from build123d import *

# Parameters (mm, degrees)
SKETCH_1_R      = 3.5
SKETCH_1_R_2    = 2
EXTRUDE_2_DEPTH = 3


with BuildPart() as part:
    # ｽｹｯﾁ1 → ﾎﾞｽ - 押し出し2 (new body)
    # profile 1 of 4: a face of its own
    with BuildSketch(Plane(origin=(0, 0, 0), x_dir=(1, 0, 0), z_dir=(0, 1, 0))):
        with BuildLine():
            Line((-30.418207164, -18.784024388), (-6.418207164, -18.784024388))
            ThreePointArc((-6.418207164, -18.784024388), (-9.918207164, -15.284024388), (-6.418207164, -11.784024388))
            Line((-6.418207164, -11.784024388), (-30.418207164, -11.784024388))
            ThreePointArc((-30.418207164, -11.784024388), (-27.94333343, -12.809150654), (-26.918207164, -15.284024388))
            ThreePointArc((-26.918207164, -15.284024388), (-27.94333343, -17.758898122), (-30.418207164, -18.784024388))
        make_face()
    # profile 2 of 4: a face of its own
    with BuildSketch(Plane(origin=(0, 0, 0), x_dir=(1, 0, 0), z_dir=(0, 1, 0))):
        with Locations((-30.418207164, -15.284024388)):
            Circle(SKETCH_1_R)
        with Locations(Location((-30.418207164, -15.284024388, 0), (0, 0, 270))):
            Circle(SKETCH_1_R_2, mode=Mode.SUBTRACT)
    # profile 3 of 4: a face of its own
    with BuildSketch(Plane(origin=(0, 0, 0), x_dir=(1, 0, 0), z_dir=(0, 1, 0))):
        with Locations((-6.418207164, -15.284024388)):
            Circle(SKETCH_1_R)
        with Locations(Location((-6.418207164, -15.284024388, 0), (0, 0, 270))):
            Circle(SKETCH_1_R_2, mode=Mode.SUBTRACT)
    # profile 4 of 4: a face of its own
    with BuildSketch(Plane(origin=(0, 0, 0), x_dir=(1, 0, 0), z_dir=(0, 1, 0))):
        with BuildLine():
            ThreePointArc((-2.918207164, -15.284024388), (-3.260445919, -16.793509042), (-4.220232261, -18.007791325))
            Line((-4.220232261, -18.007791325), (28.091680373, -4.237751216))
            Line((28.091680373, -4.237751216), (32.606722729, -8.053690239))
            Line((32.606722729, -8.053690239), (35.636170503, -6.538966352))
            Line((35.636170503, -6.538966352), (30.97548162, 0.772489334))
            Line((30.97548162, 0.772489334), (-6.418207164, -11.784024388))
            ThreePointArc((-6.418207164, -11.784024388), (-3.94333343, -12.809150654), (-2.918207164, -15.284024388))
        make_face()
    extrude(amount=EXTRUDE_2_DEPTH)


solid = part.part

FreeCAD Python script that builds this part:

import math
import FreeCAD as App
import Part
import Sketcher
Q = App.Units.Quantity

doc = App.newDocument("Part")
body = doc.addObject("PartDesign::Body", "Body")

# Sketch on XZ plane
sketch1 = doc.addObject("Sketcher::SketchObject", "Sketch")
body.addObject(sketch1)
sketch1.AttachmentSupport = (doc.XZ_Plane, [""])
sketch1.MapMode = "FlatFace"
sketch1.addGeometry(Part.LineSegment(App.Vector(-30.4, 18.8, 0), App.Vector(-6.4, 18.8, 0)), False)
sketch1.addGeometry(Part.ArcOfCircle(Part.Circle(App.Vector(-6.4, 15.3, 0), App.Vector(0, 0, 1), 3.5), math.radians(51), math.radians(90)), False)
sketch1.addGeometry(Part.LineSegment(App.Vector(-4.2, 18, 0), App.Vector(28.1, 4.2, 0)), False)
sketch1.addGeometry(Part.LineSegment(App.Vector(28.1, 4.2, 0), App.Vector(32.6, 8.1, 0)), False)
sketch1.addGeometry(Part.LineSegment(App.Vector(32.6, 8.1, 0), App.Vector(35.6, 6.5, 0)), False)
sketch1.addGeometry(Part.LineSegment(App.Vector(35.6, 6.5, 0), App.Vector(31, -0.8, 0)), False)
sketch1.addGeometry(Part.LineSegment(App.Vector(31, -0.8, 0), App.Vector(-6.4, 11.8, 0)), False)
sketch1.addGeometry(Part.LineSegment(App.Vector(-6.4, 11.8, 0), App.Vector(-30.4, 11.8, 0)), False)
sketch1.addGeometry(Part.ArcOfCircle(Part.Circle(App.Vector(-30.4, 15.3, 0), App.Vector(0, 0, 1), 3.5), math.radians(90), math.radians(270)), False)
sketch1.addGeometry(Part.Circle(App.Vector(-6.4, 15.3, 0), App.Vector(0, 0, 1), 2), False)
sketch1.addGeometry(Part.Circle(App.Vector(-30.4, 15.3, 0), App.Vector(0, 0, 1), 2), False)
sketch1.addConstraint(Sketcher.Constraint("Tangent", 0, 2, 1, 2))
sketch1.addConstraint(Sketcher.Constraint("Coincident", 1, 1, 2, 1))
sketch1.addConstraint(Sketcher.Constraint("Coincident", 2, 2, 3, 1))
sketch1.addConstraint(Sketcher.Constraint("Coincident", 3, 2, 4, 1))
sketch1.addConstraint(Sketcher.Constraint("Coincident", 4, 2, 5, 1))
sketch1.addConstraint(Sketcher.Constraint("Coincident", 5, 2, 6, 1))
sketch1.addConstraint(Sketcher.Constraint("Coincident", 6, 2, 7, 1))
sketch1.addConstraint(Sketcher.Constraint("Tangent", 7, 2, 8, 2))
sketch1.addConstraint(Sketcher.Constraint("Tangent", 8, 1, 0, 1))
sketch1.addConstraint(Sketcher.Constraint("Horizontal", 0))
sketch1.addConstraint(Sketcher.Constraint("Horizontal", 7))
sketch1.addConstraint(Sketcher.Constraint("Coincident", 9, 3, 1, 3))
sketch1.addConstraint(Sketcher.Constraint("Coincident", 10, 3, 8, 3))
sketch1.addConstraint(Sketcher.Constraint("Equal", 1, 8))
sketch1.addConstraint(Sketcher.Constraint("Equal", 9, 10))
sketch1.addConstraint(Sketcher.Constraint("Vertical", 0, 2, 6, 2))
sketch1.addConstraint(Sketcher.Constraint("Diameter", 9, Q("4 mm")))
sketch1.addConstraint(Sketcher.Constraint("Radius", 1, Q("3.5 mm")))
sketch1.addConstraint(Sketcher.Constraint("DistanceX", 0, 1, 0, 2, Q("24 mm")))
sketch1.addConstraint(Sketcher.Constraint("Distance", 3, Q("5.911599 mm")))
sketch1.addConstraint(Sketcher.Constraint("DistanceY", 3, 2, 1, 1, Q("9.954101 mm")))
sketch1.addConstraint(Sketcher.Constraint("DistanceX", 2, 2, 5, 2, Q("2.883801 mm")))
sketch1.addConstraint(Sketcher.Constraint("Distance", 2, Q("35.123691 mm")))
sketch1.addConstraint(Sketcher.Constraint("DistanceY", -1, 1, 1, 1, Q("18.007791 mm")))
sketch1.addConstraint(Sketcher.Constraint("DistanceX", -1, 1, 2, 2, Q("28.09168 mm")))
sketch1.addConstraint(Sketcher.Constraint("DistanceY", -1, 1, 2, 2, Q("4.237751 mm")))
sketch1.addConstraint(Sketcher.Constraint("DistanceX", -1, 1, 4, 2, Q("35.636171 mm")))
sketch1.addConstraint(Sketcher.Constraint("DistanceY", 5, 2, -1, 1, Q("0.772489 mm")))
sketch1.addConstraint(Sketcher.Constraint("DistanceX", 1, 3, 3, 2, Q("39.02493 mm")))
sketch1.addConstraint(Sketcher.Constraint("DistanceY", 4, 2, 1, 3, Q("8.745058 mm")))
pad1 = doc.addObject("PartDesign::Pad", "Pad")
body.addObject(pad1)
pad1.Profile = sketch1
pad1.Length = 3
pad1.Reversed = True

doc.recompute()
